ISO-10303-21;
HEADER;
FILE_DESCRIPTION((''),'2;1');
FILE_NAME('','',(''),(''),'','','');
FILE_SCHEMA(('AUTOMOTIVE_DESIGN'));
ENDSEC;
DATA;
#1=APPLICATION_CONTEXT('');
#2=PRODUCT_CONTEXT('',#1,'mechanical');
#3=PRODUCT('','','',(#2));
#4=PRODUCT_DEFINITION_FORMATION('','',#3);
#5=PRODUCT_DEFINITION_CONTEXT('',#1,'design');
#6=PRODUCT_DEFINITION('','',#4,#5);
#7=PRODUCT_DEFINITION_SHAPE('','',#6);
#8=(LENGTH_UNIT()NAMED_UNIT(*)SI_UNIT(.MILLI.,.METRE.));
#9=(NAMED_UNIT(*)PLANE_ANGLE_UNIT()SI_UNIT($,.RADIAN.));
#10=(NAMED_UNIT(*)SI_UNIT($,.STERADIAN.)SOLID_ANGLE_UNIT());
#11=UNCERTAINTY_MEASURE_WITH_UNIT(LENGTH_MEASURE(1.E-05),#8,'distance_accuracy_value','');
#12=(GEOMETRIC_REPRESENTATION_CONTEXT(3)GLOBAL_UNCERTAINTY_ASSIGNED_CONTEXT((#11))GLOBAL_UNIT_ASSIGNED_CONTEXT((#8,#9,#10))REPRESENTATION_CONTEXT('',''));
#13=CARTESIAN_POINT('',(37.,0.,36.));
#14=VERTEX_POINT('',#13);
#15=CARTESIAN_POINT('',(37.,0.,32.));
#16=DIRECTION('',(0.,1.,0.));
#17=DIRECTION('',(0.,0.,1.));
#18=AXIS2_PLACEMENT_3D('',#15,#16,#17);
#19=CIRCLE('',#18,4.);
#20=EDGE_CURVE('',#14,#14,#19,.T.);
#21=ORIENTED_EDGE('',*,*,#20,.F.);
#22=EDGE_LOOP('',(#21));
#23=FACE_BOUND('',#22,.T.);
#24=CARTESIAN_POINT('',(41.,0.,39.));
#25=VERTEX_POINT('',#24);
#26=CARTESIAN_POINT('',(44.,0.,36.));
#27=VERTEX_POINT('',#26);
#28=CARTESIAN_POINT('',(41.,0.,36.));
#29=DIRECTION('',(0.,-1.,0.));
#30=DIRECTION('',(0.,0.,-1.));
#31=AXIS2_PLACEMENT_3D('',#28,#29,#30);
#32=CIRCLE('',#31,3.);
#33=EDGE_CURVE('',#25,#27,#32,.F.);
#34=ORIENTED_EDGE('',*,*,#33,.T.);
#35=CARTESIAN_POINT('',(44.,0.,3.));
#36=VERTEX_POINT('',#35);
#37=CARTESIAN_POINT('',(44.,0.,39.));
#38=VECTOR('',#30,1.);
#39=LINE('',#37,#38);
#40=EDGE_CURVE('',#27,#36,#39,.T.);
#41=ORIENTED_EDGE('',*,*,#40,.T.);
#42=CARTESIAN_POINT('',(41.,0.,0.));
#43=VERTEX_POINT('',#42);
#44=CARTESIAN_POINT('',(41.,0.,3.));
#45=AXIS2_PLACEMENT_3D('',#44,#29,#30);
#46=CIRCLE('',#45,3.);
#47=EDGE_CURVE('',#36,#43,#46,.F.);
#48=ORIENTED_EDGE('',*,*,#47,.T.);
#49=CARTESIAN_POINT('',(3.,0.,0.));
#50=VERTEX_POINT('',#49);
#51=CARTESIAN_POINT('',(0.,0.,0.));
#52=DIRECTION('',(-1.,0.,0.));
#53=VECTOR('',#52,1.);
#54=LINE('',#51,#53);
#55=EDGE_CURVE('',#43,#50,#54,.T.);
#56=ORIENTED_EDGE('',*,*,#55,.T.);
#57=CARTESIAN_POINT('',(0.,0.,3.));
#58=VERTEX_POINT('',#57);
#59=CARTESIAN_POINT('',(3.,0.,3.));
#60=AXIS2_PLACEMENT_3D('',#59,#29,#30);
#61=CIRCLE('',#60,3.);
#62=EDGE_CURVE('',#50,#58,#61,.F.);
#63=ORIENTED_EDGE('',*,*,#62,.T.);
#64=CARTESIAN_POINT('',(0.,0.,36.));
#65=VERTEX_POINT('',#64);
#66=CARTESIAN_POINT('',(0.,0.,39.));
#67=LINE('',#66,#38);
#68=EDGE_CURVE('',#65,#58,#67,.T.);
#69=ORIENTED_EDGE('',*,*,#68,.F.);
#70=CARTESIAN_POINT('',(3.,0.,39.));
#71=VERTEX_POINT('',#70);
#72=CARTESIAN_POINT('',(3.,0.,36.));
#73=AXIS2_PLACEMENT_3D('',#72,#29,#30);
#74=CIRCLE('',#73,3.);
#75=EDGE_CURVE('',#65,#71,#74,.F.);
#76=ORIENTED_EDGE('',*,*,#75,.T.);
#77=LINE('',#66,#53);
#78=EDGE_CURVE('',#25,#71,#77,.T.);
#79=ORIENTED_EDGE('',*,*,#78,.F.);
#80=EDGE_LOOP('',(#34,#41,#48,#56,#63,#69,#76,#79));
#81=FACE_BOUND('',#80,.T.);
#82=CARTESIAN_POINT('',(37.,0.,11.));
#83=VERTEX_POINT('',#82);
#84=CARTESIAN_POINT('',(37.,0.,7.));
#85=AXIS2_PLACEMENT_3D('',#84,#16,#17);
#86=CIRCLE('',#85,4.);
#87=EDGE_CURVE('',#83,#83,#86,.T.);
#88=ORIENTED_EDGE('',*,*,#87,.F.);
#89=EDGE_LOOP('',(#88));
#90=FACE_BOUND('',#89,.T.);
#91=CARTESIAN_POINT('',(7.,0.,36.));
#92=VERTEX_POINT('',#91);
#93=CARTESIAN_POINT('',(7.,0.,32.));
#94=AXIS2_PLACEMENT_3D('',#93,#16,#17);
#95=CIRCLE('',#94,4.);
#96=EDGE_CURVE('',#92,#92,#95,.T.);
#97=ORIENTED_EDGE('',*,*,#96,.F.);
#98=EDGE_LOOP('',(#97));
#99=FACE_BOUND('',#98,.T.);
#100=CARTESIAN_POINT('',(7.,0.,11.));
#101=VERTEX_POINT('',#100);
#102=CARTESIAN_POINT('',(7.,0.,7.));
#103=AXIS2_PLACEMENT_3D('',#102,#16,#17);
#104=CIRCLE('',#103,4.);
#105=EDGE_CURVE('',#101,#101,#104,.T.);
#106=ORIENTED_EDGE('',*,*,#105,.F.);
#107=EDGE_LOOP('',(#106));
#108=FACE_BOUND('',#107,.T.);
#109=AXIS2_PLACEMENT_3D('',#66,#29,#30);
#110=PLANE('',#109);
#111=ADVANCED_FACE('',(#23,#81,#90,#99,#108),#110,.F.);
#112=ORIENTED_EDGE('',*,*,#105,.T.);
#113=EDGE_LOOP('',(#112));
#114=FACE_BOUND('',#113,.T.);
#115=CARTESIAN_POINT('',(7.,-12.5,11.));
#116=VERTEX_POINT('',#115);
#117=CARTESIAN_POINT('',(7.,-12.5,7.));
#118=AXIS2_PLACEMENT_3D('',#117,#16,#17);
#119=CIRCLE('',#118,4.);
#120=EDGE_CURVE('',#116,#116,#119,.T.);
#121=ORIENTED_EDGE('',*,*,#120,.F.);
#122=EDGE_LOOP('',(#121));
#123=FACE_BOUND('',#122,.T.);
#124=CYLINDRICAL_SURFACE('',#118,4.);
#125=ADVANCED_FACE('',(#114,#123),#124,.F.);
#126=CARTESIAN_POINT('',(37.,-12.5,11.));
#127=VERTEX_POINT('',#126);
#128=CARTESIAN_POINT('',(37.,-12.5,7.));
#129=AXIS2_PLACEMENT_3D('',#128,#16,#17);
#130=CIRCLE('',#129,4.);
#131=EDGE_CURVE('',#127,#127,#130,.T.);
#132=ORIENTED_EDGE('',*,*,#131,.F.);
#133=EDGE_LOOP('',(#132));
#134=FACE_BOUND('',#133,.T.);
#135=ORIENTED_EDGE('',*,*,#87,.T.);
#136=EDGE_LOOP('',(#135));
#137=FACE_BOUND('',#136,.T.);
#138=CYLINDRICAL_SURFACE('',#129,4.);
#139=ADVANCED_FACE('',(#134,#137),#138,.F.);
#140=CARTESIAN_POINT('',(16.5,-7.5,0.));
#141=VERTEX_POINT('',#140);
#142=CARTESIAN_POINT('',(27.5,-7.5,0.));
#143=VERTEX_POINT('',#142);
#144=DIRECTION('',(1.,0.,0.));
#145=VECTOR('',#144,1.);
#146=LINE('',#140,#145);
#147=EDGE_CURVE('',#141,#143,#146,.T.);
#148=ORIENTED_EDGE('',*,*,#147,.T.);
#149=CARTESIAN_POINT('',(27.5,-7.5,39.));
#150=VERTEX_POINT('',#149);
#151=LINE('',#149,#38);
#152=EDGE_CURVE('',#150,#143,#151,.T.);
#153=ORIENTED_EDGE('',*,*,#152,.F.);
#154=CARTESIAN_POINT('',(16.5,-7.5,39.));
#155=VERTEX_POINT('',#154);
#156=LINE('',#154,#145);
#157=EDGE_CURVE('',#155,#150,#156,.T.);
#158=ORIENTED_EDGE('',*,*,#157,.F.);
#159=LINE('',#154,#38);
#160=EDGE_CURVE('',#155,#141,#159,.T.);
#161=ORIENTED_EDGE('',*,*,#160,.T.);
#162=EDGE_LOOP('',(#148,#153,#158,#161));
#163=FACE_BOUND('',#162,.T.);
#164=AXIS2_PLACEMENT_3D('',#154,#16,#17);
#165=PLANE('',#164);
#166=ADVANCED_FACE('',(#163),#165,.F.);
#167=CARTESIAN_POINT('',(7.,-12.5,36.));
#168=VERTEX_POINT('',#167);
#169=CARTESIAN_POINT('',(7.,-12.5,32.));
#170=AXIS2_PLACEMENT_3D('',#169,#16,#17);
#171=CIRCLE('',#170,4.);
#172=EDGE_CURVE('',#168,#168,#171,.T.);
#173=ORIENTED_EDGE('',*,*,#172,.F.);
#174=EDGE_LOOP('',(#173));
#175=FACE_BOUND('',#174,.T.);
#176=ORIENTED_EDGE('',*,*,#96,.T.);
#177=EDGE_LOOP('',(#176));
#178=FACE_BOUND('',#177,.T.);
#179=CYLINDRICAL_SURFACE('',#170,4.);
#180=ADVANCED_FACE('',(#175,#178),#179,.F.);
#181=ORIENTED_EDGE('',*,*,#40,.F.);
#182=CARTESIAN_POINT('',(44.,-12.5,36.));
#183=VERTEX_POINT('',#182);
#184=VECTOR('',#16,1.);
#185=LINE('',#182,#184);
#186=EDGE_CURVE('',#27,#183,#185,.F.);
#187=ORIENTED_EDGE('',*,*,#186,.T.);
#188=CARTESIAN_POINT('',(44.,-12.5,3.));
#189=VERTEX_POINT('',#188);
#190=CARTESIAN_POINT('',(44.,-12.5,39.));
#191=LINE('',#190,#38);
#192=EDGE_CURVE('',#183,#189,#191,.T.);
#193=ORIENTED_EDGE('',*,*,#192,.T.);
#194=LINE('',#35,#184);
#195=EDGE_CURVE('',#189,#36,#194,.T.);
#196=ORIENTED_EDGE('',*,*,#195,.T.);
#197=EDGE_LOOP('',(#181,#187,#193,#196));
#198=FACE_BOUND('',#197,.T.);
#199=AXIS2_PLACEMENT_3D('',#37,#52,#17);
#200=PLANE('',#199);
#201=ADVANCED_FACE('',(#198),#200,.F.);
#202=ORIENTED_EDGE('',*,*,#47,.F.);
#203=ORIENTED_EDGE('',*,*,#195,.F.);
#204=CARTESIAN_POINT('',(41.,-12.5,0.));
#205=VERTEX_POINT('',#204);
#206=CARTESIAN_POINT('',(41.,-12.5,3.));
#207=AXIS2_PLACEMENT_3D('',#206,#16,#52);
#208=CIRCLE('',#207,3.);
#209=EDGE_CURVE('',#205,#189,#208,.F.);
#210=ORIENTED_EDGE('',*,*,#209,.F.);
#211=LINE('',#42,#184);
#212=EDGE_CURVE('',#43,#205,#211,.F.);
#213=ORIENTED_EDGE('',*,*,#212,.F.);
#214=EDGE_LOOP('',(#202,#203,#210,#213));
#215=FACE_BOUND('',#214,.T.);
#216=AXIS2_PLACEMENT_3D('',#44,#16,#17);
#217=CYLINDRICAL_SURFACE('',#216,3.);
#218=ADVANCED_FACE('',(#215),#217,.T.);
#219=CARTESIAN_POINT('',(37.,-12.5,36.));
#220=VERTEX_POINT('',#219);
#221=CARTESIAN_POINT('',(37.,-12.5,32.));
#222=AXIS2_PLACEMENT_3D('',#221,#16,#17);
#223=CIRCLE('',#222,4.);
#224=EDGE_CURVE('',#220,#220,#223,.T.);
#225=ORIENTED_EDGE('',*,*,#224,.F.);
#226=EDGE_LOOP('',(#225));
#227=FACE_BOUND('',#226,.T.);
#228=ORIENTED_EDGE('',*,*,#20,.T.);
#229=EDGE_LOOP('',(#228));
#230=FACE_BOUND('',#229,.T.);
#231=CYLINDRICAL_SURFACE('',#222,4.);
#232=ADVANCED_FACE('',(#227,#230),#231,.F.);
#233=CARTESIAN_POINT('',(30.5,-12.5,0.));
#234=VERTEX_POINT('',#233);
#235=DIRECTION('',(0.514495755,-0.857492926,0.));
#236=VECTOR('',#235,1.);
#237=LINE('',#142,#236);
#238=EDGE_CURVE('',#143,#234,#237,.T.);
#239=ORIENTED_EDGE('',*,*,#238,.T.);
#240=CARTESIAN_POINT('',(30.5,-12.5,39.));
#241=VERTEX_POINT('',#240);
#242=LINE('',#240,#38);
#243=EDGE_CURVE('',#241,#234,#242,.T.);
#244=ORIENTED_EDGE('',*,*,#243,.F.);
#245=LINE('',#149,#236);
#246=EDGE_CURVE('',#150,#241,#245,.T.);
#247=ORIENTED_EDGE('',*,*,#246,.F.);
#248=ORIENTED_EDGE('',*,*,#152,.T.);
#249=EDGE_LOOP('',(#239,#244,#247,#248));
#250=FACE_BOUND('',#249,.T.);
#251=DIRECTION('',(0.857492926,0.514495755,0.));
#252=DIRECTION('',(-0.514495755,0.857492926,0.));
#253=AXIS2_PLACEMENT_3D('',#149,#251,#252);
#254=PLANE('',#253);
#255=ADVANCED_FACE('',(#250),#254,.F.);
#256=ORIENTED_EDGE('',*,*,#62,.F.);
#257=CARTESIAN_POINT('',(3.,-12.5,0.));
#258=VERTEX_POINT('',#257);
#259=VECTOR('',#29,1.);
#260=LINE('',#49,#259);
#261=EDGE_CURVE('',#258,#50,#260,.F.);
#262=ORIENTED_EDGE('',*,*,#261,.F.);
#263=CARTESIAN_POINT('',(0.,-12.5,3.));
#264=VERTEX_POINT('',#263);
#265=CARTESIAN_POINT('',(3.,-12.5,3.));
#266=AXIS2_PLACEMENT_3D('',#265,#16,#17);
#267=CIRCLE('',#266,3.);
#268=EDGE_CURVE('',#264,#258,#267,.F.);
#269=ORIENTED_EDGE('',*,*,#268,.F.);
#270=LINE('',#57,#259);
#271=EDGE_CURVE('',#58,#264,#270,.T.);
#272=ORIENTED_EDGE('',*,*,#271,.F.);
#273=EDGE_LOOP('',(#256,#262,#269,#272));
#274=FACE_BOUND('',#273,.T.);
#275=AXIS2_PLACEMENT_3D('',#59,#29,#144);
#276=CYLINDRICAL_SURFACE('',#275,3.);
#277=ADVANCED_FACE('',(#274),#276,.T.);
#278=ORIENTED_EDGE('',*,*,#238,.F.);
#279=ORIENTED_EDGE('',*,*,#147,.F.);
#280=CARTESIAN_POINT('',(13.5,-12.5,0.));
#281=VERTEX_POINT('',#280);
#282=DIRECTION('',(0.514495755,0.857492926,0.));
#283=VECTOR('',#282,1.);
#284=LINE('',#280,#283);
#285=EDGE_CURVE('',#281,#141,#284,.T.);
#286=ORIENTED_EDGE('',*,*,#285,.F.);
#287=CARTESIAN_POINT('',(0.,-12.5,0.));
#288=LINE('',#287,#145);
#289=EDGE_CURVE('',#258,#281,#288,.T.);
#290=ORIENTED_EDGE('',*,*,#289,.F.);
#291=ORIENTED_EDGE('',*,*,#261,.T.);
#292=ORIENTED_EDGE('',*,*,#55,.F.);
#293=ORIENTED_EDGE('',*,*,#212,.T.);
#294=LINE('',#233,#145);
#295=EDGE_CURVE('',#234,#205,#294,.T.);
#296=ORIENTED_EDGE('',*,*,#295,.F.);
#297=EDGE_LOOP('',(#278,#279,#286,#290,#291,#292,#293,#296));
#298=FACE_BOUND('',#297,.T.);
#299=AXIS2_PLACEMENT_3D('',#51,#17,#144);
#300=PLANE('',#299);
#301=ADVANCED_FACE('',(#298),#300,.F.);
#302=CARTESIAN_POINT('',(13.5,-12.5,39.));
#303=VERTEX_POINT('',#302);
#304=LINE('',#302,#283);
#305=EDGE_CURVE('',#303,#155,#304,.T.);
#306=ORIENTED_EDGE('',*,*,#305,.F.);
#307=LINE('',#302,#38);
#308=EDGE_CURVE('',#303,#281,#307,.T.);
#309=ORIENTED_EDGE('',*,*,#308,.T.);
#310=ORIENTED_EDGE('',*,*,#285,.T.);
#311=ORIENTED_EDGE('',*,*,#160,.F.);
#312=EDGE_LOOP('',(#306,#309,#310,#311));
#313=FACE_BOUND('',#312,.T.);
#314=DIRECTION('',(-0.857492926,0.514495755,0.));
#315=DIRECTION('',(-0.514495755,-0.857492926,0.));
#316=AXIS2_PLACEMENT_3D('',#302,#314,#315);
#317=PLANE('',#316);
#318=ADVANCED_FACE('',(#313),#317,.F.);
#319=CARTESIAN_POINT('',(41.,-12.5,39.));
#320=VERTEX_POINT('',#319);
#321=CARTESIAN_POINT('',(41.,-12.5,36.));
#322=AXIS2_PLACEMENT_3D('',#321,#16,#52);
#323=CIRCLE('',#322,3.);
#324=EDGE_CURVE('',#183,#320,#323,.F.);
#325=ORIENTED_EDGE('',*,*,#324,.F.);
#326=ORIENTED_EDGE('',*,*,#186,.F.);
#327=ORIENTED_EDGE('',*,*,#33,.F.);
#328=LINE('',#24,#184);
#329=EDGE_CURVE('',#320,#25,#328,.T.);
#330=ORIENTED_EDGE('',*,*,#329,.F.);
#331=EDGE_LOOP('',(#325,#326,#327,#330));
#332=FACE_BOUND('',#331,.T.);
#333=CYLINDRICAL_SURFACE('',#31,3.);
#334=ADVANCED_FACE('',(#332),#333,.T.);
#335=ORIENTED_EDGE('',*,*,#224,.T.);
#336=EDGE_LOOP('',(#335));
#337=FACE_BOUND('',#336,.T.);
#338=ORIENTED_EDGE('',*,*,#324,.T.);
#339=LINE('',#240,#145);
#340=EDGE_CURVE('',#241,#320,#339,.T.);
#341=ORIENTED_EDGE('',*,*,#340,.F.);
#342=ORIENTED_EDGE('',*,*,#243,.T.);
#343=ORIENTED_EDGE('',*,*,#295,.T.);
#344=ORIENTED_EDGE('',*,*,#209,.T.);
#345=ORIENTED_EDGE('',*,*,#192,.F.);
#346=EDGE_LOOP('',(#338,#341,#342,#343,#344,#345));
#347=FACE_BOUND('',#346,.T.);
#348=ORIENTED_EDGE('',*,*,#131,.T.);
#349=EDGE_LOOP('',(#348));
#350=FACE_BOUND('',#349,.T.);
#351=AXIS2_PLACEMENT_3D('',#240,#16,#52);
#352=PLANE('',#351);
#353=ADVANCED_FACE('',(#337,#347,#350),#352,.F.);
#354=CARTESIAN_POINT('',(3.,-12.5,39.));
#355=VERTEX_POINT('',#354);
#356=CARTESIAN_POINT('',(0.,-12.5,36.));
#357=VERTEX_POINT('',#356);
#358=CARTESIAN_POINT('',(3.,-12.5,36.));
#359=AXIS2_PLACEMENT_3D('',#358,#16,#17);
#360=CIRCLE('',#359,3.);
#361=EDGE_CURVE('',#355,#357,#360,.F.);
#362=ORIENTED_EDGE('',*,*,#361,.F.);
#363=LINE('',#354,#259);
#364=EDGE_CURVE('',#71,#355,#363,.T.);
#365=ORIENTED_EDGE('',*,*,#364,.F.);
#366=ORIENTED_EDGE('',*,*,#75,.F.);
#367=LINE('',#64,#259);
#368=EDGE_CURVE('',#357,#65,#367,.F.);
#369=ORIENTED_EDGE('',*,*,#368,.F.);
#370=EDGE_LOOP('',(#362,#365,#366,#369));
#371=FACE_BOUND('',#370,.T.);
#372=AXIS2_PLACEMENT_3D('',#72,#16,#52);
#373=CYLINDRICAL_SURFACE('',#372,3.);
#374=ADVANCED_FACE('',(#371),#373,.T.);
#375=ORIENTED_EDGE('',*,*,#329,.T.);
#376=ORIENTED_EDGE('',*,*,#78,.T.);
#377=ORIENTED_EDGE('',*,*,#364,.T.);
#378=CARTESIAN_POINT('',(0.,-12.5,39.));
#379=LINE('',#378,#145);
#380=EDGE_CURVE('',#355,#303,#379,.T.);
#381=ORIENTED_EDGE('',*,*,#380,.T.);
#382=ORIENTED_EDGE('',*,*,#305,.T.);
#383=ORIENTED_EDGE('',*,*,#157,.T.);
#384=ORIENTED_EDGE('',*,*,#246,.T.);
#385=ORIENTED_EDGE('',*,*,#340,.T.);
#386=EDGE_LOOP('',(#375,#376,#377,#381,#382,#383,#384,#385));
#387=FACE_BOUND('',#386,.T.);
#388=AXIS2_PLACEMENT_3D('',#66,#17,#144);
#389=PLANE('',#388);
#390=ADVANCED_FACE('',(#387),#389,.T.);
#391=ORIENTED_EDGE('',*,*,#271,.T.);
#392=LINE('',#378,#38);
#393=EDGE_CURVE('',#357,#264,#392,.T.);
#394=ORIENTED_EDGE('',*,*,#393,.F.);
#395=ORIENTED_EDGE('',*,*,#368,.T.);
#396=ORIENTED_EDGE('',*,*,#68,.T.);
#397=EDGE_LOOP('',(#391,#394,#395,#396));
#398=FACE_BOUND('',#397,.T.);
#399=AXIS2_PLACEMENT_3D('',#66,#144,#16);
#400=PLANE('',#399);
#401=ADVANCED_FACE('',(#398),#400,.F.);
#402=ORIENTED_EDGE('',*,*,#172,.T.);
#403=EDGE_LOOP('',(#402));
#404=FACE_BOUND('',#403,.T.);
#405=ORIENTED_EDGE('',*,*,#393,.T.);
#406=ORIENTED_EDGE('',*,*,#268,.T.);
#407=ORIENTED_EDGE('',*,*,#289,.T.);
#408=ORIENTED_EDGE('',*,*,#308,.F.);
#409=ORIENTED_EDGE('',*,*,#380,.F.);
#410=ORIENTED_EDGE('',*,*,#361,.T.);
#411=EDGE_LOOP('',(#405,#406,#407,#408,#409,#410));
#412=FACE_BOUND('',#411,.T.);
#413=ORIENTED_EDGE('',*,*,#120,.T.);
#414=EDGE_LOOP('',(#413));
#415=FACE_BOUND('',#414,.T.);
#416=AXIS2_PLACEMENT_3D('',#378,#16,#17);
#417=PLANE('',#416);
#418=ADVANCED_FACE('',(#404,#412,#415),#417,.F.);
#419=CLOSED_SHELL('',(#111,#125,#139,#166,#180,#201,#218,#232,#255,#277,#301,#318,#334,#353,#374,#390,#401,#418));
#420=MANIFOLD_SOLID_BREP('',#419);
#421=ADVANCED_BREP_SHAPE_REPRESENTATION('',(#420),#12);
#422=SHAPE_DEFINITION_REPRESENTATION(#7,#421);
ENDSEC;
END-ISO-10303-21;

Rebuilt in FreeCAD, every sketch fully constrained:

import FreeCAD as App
import Part
import Sketcher
from FreeCAD import Vector
Q = App.Units.Quantity


def edges_at(feature, points):
    """Names of the edges that pass closest to the given points."""
    edges = feature.Shape.Edges
    near = lambda p: min(range(len(edges)), key=lambda i: edges[i].distToShape(Part.Vertex(*p))[0])
    return sorted({f"Edge{near(p) + 1}" for p in points})

doc = App.newDocument("Part")
body = doc.addObject("PartDesign::Body", "Body")

# Sketch on XY plane
sketch1 = doc.addObject("Sketcher::SketchObject", "Sketch")
body.addObject(sketch1)
sketch1.AttachmentSupport = (doc.XY_Plane, [""])
sketch1.MapMode = "FlatFace"
sketch1.addGeometry([
    Part.LineSegment(Vector(14, -12, 0), Vector(16, -8, 0)),  # 0
    Part.LineSegment(Vector(16, -8, 0), Vector(28, -8, 0)),  # 1
    Part.LineSegment(Vector(28, -8, 0), Vector(30, -12, 0)),  # 2
    Part.LineSegment(Vector(30, -12, 0), Vector(44, -12, 0)),  # 3
    Part.LineSegment(Vector(44, -12, 0), Vector(44, 0, 0)),  # 4
    Part.LineSegment(Vector(44, 0, 0), Vector(0, 0, 0)),  # 5
    Part.LineSegment(Vector(0, 0, 0), Vector(0, -12, 0)),  # 6
    Part.LineSegment(Vector(0, -12, 0), Vector(14, -12, 0)),  # 7
], False)
sketch1.addConstraint([
    Sketcher.Constraint("Coincident", 0, 2, 1, 1),
    Sketcher.Constraint("Coincident", 1, 2, 2, 1),
    Sketcher.Constraint("Coincident", 2, 2, 3, 1),
    Sketcher.Constraint("Coincident", 3, 2, 4, 1),
    Sketcher.Constraint("Coincident", 4, 2, 5, 1),
    Sketcher.Constraint("Coincident", 5, 2, 6, 1),
    Sketcher.Constraint("Coincident", 6, 2, 7, 1),
    Sketcher.Constraint("Coincident", 7, 2, 0, 1),
    Sketcher.Constraint("Horizontal", 1),
    Sketcher.Constraint("Horizontal", 3),
    Sketcher.Constraint("Vertical", 4),
    Sketcher.Constraint("Horizontal", 5),
    Sketcher.Constraint("Vertical", 6),
    Sketcher.Constraint("Horizontal", 7),
    Sketcher.Constraint("Coincident", 5, 2, -1, 1),
    Sketcher.Constraint("Horizontal", 3, 2, 6, 2),
    Sketcher.Constraint("Equal", 3, 7),
    Sketcher.Constraint("Equal", 0, 2),
    Sketcher.Constraint("DistanceX", 1, 1, 1, 2, Q("11 mm")),
    Sketcher.Constraint("DistanceX", 5, 2, 5, 1, Q("44 mm")),
    Sketcher.Constraint("DistanceX", 3, 1, 3, 2, Q("13.5 mm")),
    Sketcher.Constraint("DistanceY", 4, 1, 4, 2, Q("12.5 mm")),
    Sketcher.Constraint("DistanceY", 2, 2, 1, 2, Q("5 mm")),
])
pad1 = doc.addObject("PartDesign::Pad", "Pad")
body.addObject(pad1)
pad1.Profile = sketch1
pad1.Length = 39

# Sketch on XZ plane
sketch2 = doc.addObject("Sketcher::SketchObject", "Sketch001")
body.addObject(sketch2)
sketch2.AttachmentSupport = (doc.XZ_Plane, [""])
sketch2.MapMode = "FlatFace"
sketch2.addGeometry([
    Part.Circle(Vector(7, 7, 0), Vector(0, 0, 1), 4),
    Part.Circle(Vector(37, 7, 0), Vector(0, 0, 1), 4),
    Part.Circle(Vector(37, 32, 0), Vector(0, 0, 1), 4),
    Part.Circle(Vector(7, 32, 0), Vector(0, 0, 1), 4),
], False)
sketch2.addConstraint([
    Sketcher.Constraint("Equal", 0, 1),
    Sketcher.Constraint("Equal", 1, 2),
    Sketcher.Constraint("Equal", 2, 3),
    Sketcher.Constraint("Horizontal", 0, 3, 1, 3),
    Sketcher.Constraint("Horizontal", 2, 3, 3, 3),
    Sketcher.Constraint("Vertical", 1, 3, 2, 3),
    Sketcher.Constraint("Vertical", 0, 3, 3, 3),
    Sketcher.Constraint("Diameter", 0, Q("8 mm")),
    Sketcher.Constraint("DistanceX", -1, 1, 0, 3, Q("7 mm")),
    Sketcher.Constraint("DistanceY", -1, 1, 0, 3, Q("7 mm")),
    Sketcher.Constraint("DistanceX", -1, 1, 1, 3, Q("37 mm")),
    Sketcher.Constraint("DistanceY", -1, 1, 2, 3, Q("32 mm")),
])
pocket1 = doc.addObject("PartDesign::Pocket", "Pocket")
body.addObject(pocket1)
pocket1.Profile = sketch2
pocket1.Type = "ThroughAll"
pocket1.Reversed = True
doc.recompute()

fillet = doc.addObject("PartDesign::Fillet", "Fillet")
body.addObject(fillet)
fillet.Base = (pocket1, edges_at(pocket1, [
    (0, -6.25, 0),
    (44, -6.25, 39),
    (0, -6.25, 39),
    (44, -6.25, 0),
]))
fillet.Radius = 3

doc.recompute()
